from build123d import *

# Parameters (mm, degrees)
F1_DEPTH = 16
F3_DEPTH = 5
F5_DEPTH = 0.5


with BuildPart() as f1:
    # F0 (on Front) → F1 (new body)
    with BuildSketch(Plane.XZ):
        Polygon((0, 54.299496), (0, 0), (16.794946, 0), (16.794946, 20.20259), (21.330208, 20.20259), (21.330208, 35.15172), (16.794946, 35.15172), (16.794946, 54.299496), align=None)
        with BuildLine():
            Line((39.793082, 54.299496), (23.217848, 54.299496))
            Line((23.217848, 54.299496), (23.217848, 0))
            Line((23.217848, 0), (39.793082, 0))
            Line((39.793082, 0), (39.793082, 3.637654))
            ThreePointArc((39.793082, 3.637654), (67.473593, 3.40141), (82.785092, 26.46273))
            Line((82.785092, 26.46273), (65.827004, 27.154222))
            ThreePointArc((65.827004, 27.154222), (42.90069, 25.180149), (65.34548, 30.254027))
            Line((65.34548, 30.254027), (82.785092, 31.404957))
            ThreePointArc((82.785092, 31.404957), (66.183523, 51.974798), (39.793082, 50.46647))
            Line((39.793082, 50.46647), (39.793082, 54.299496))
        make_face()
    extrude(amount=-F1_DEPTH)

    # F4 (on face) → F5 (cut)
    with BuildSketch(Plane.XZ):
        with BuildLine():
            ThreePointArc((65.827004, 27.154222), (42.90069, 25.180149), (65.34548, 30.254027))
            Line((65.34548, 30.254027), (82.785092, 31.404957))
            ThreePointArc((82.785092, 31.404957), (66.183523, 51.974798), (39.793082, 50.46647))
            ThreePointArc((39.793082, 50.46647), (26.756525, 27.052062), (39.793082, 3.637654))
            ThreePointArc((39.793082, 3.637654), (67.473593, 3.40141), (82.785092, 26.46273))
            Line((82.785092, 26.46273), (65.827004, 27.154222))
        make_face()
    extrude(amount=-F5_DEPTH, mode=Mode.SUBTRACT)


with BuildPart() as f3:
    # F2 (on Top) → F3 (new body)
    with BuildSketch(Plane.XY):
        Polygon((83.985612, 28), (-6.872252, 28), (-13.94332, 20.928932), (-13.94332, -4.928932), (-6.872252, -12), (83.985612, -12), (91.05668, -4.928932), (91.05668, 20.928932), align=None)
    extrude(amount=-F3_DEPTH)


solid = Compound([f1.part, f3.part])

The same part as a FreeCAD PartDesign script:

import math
import FreeCAD as App
import Part
import Sketcher
Q = App.Units.Quantity


def add_polygon(sketch, points):
    """Adds a closed chain of lines whose ends are joined by coincident constraints."""
    first, n = sketch.GeometryCount, len(points)
    for a, b in zip(points, points[1:] + points[:1]):
        sketch.addGeometry(Part.LineSegment(App.Vector(*a, 0), App.Vector(*b, 0)), False)
    for i in range(n):
        sketch.addConstraint(Sketcher.Constraint("Coincident", first + i, 2, first + (i + 1) % n, 1))

doc = App.newDocument("Part")
params = doc.addObject("Spreadsheet::Sheet", "Params")
for row, (alias, value) in enumerate([
    ("pad1_length", "16 mm"),
    ("pocket1_length", "0.5 mm"),
    ("sketch3_length", "10 mm"),
    ("pad2_length", "5 mm"),
], start=1):
    params.set(f"A{row}", alias)
    params.set(f"B{row}", "=" + value)
    params.setAlias(f"B{row}", alias)

body = doc.addObject("PartDesign::Body", "Body")
body.AllowCompound = True

# Sketch on XZ plane
sketch1 = doc.addObject("Sketcher::SketchObject", "Sketch")
body.addObject(sketch1)
sketch1.AttachmentSupport = (doc.XZ_Plane, [""])
sketch1.MapMode = "FlatFace"
add_polygon(sketch1, [(0, 54.3), (0, 0), (16.8, 0), (16.8, 20.2), (21.3, 20.2), (21.3, 35.2), (16.8, 35.2), (16.8, 54.3)])  # lines 0-7
sketch1.addGeometry(Part.LineSegment(App.Vector(39.8, 54.3, 0), App.Vector(23.2, 54.3, 0)), False)  # 8
sketch1.addGeometry(Part.LineSegment(App.Vector(23.2, 54.3, 0), App.Vector(23.2, 0, 0)), False)  # 9
sketch1.addGeometry(Part.LineSegment(App.Vector(23.2, 0, 0), App.Vector(39.8, 0, 0)), False)  # 10
sketch1.addGeometry(Part.LineSegment(App.Vector(39.8, 0, 0), App.Vector(39.8, 3.6, 0)), False)  # 11
sketch1.addGeometry(Part.ArcOfCircle(Part.Circle(App.Vector(53.9, 29.1, 0), App.Vector(0, 0, 1), 29.1), math.radians(-119), math.radians(-5)), False)  # 12
sketch1.addGeometry(Part.LineSegment(App.Vector(82.8, 26.5, 0), App.Vector(65.8, 27.2, 0)), False)  # 13
sketch1.addGeometry(Part.ArcOfCircle(Part.Circle(App.Vector(54.3, 27, 0), App.Vector(0, 0, 1), 11.5), math.radians(17), math.radians(361)), False)  # 14
sketch1.addGeometry(Part.LineSegment(App.Vector(65.3, 30.3, 0), App.Vector(82.8, 31.4, 0)), False)  # 15
sketch1.addGeometry(Part.ArcOfCircle(Part.Circle(App.Vector(54.5, 25.5, 0), App.Vector(0, 0, 1), 28.9), math.radians(12), math.radians(120)), False)  # 16
sketch1.addGeometry(Part.LineSegment(App.Vector(39.8, 50.5, 0), App.Vector(39.8, 54.3, 0)), False)  # 17
sketch1.addConstraint(Sketcher.Constraint("Coincident", 8, 2, 9, 1))
sketch1.addConstraint(Sketcher.Constraint("Coincident", 9, 2, 10, 1))
sketch1.addConstraint(Sketcher.Constraint("Coincident", 10, 2, 11, 1))
sketch1.addConstraint(Sketcher.Constraint("Coincident", 11, 2, 12, 1))
sketch1.addConstraint(Sketcher.Constraint("Coincident", 12, 2, 13, 1))
sketch1.addConstraint(Sketcher.Constraint("Coincident", 13, 2, 14, 2))
sketch1.addConstraint(Sketcher.Constraint("Coincident", 14, 1, 15, 1))
sketch1.addConstraint(Sketcher.Constraint("Coincident", 15, 2, 16, 1))
sketch1.addConstraint(Sketcher.Constraint("Coincident", 16, 2, 17, 1))
sketch1.addConstraint(Sketcher.Constraint("Coincident", 17, 2, 8, 1))
sketch1.addConstraint(Sketcher.Constraint("Vertical", 0))
sketch1.addConstraint(Sketcher.Constraint("Horizontal", 1))
sketch1.addConstraint(Sketcher.Constraint("Vertical", 2))
sketch1.addConstraint(Sketcher.Constraint("Horizontal", 3))
sketch1.addConstraint(Sketcher.Constraint("Vertical", 4))
sketch1.addConstraint(Sketcher.Constraint("Horizontal", 5))
sketch1.addConstraint(Sketcher.Constraint("Vertical", 6))
sketch1.addConstraint(Sketcher.Constraint("Horizontal", 7))
sketch1.addConstraint(Sketcher.Constraint("Horizontal", 8))
sketch1.addConstraint(Sketcher.Constraint("Vertical", 9))
sketch1.addConstraint(Sketcher.Constraint("Horizontal", 10))
sketch1.addConstraint(Sketcher.Constraint("Vertical", 11))
sketch1.addConstraint(Sketcher.Constraint("Vertical", 17))
sketch1.addConstraint(Sketcher.Constraint("Coincident", 0, 2, -1, 1))
sketch1.addConstraint(Sketcher.Constraint("PointOnObject", 9, 2, -1))
sketch1.addConstraint(Sketcher.Constraint("Horizontal", 7, 2, 8, 2))
sketch1.addConstraint(Sketcher.Constraint("Vertical", 2, 2, 5, 2))
sketch1.addConstraint(Sketcher.Constraint("Vertical", 12, 2, 15, 2))
sketch1.addConstraint(Sketcher.Constraint("Vertical", 11, 2, 16, 2))
sketch1.addConstraint(Sketcher.Constraint("Radius", 12, Q("29.050079 mm")))
sketch1.addConstraint(Sketcher.Constraint("Radius", 16, Q("28.93182 mm")))
sketch1.addConstraint(Sketcher.Constraint("Radius", 14, Q("11.532394 mm")))
sketch1.addConstraint(Sketcher.Constraint("DistanceX", 3, 1, 3, 2, Q("4.535262 mm")))
sketch1.addConstraint(Sketcher.Constraint("DistanceY", 2, 1, 2, 2, Q("20.20259 mm")))
sketch1.addConstraint(Sketcher.Constraint("DistanceY", 4, 1, 4, 2, Q("14.94913 mm")))
sketch1.addConstraint(Sketcher.Constraint("DistanceX", 12, 3, 14, 3, Q("0.445098 mm")))
sketch1.addConstraint(Sketcher.Constraint("Distance", 13, Q("16.97218 mm")))
sketch1.addConstraint(Sketcher.Constraint("Distance", 15, Q("17.477549 mm")))
sketch1.addConstraint(Sketcher.Constraint("DistanceX", 1, 1, 1, 2, Q("16.794946 mm")))
sketch1.addConstraint(Sketcher.Constraint("DistanceX", 8, 2, 8, 1, Q("16.575234 mm")))
sketch1.addConstraint(Sketcher.Constraint("DistanceY", 0, 2, 0, 1, Q("54.299496 mm")))
sketch1.addConstraint(Sketcher.Constraint("DistanceY", 11, 1, 11, 2, Q("3.637654 mm")))
sketch1.addConstraint(Sketcher.Constraint("DistanceY", 17, 1, 17, 2, Q("3.833026 mm")))
sketch1.addConstraint(Sketcher.Constraint("DistanceY", -1, 1, 12, 3, Q("29.059558 mm")))
sketch1.addConstraint(Sketcher.Constraint("DistanceX", -1, 1, 14, 3, Q("54.296412 mm")))
sketch1.addConstraint(Sketcher.Constraint("DistanceY", -1, 1, 14, 3, Q("26.950361 mm")))
sketch1.addConstraint(Sketcher.Constraint("DistanceX", -1, 1, 16, 3, Q("54.456858 mm")))
sketch1.addConstraint(Sketcher.Constraint("DistanceX", -1, 1, 12, 2, Q("82.785092 mm")))
pad1 = doc.addObject("PartDesign::Pad", "Pad")
body.addObject(pad1)
pad1.Profile = sketch1
pad1.setExpression("Length", "Params.pad1_length")
pad1.Reversed = True

# Sketch on XZ plane
sketch2 = doc.addObject("Sketcher::SketchObject", "Sketch001")
body.addObject(sketch2)
sketch2.AttachmentSupport = (doc.XZ_Plane, [""])
sketch2.MapMode = "FlatFace"
sketch2.addGeometry(Part.ArcOfCircle(Part.Circle(App.Vector(54.3, 27, 0), App.Vector(0, 0, 1), 11.5), math.radians(17), math.radians(361)), False)
sketch2.addGeometry(Part.LineSegment(App.Vector(65.3, 30.3, 0), App.Vector(82.8, 31.4, 0)), False)
sketch2.addGeometry(Part.ArcOfCircle(Part.Circle(App.Vector(54.5, 25.5, 0), App.Vector(0, 0, 1), 28.9), math.radians(12), math.radians(120)), False)
sketch2.addGeometry(Part.ArcOfCircle(Part.Circle(App.Vector(54.3, 27.1, 0), App.Vector(0, 0, 1), 27.5), math.radians(122), math.radians(238)), False)
sketch2.addGeometry(Part.ArcOfCircle(Part.Circle(App.Vector(53.9, 29.1, 0), App.Vector(0, 0, 1), 29.1), math.radians(-119), math.radians(-5)), False)
sketch2.addGeometry(Part.LineSegment(App.Vector(82.8, 26.5, 0), App.Vector(65.8, 27.2, 0)), False)
sketch2.addConstraint(Sketcher.Constraint("Coincident", 0, 1, 1, 1))
sketch2.addConstraint(Sketcher.Constraint("Coincident", 1, 2, 2, 1))
sketch2.addConstraint(Sketcher.Constraint("Coincident", 2, 2, 3, 1))
sketch2.addConstraint(Sketcher.Constraint("Coincident", 3, 2, 4, 1))
sketch2.addConstraint(Sketcher.Constraint("Coincident", 4, 2, 5, 1))
sketch2.addConstraint(Sketcher.Constraint("Coincident", 5, 2, 0, 2))
sketch2.addConstraint(Sketcher.Constraint("Vertical", 2, 2, 3, 2))
sketch2.addConstraint(Sketcher.Constraint("Vertical", 1, 2, 4, 2))
sketch2.addConstraint(Sketcher.Constraint("Radius", 2, Q("28.93182 mm")))
sketch2.addConstraint(Sketcher.Constraint("Radius", 3, Q("27.545092 mm")))
sketch2.addConstraint(Sketcher.Constraint("Radius", 4, Q("29.050079 mm")))
sketch2.addConstraint(Sketcher.Constraint("Radius", 0, Q("11.532394 mm")))
sketch2.addConstraint(Sketcher.Constraint("DistanceY", 2, 3, 3, 3, Q("1.525998 mm")))
sketch2.addConstraint(Sketcher.Constraint("DistanceY", 0, 3, 3, 3, Q("0.101701 mm")))
sketch2.addConstraint(Sketcher.Constraint("DistanceX", 4, 3, 0, 3, Q("0.445098 mm")))
sketch2.addConstraint(Sketcher.Constraint("DistanceY", 4, 3, 1, 2, Q("2.345399 mm")))
sketch2.addConstraint(Sketcher.Constraint("DistanceX", 2, 2, 0, 1, Q("25.552398 mm")))
sketch2.addConstraint(Sketcher.Constraint("Distance", 1, Q("17.477549 mm")))
sketch2.addConstraint(Sketcher.Constraint("Distance", 5, Q("16.97218 mm")))
sketch2.addConstraint(Sketcher.Constraint("DistanceX", -1, 1, 0, 3, Q("54.296412 mm")))
sketch2.addConstraint(Sketcher.Constraint("DistanceY", -1, 1, 0, 3, Q("26.950361 mm")))
sketch2.addConstraint(Sketcher.Constraint("DistanceX", -1, 1, 2, 3, Q("54.456858 mm")))
pocket1 = doc.addObject("PartDesign::Pocket", "Pocket")
body.addObject(pocket1)
pocket1.Profile = sketch2
pocket1.setExpression("Length", "Params.pocket1_length")
body2 = doc.addObject("PartDesign::Body", "Body001")

# Sketch on XY plane
sketch3 = doc.addObject("Sketcher::SketchObject", "Sketch002")
body2.addObject(sketch3)
sketch3.AttachmentSupport = (doc.getObject("XY_Plane001"), [""])
sketch3.MapMode = "FlatFace"
add_polygon(sketch3, [(84, 28), (-7, 28), (-14, 21), (-14, -5), (-7, -12), (84, -12), (91, -5), (91, 21)])  # lines 0-7
sketch3.addConstraint(Sketcher.Constraint("Horizontal", 0))
sketch3.addConstraint(Sketcher.Constraint("Vertical", 2))
sketch3.addConstraint(Sketcher.Constraint("Horizontal", 4))
sketch3.addConstraint(Sketcher.Constraint("Vertical", 6))
sketch3.addConstraint(Sketcher.Constraint("Perpendicular", 1, 3))
sketch3.addConstraint(Sketcher.Constraint("Perpendicular", 3, 5))
sketch3.addConstraint(Sketcher.Constraint("Perpendicular", 5, 7))
sketch3.addConstraint(Sketcher.Constraint("Horizontal", 2, 2, 5, 2))
sketch3.addConstraint(Sketcher.Constraint("Horizontal", 1, 2, 6, 2))
sketch3.addConstraint(Sketcher.Constraint("Vertical", 0, 2, 3, 2))
sketch3.addConstraint(Sketcher.Constraint("Vertical", 4, 2, 7, 2))
sketch3.addConstraint(Sketcher.Constraint("Distance", 1, Q("10 mm")))
sketch3.addConstraint(Sketcher.Constraint("DistanceY", -1, 1, 0, 2, Q("28 mm")))
sketch3.addConstraint(Sketcher.Constraint("DistanceY", 3, 2, -1, 1, Q("12 mm")))
sketch3.addConstraint(Sketcher.Constraint("DistanceX", 2, 2, 5, 2, Q("105 mm")))
sketch3.addConstraint(Sketcher.Constraint("DistanceX", 0, 2, -1, 1, Q("6.872252 mm")))
sketch3.setExpression("Constraints[19]", "Params.sketch3_length")
pad2 = doc.addObject("PartDesign::Pad", "Pad001")
body2.addObject(pad2)
pad2.Profile = sketch3
pad2.setExpression("Length", "Params.pad2_length")
pad2.Reversed = True

doc.recompute()
